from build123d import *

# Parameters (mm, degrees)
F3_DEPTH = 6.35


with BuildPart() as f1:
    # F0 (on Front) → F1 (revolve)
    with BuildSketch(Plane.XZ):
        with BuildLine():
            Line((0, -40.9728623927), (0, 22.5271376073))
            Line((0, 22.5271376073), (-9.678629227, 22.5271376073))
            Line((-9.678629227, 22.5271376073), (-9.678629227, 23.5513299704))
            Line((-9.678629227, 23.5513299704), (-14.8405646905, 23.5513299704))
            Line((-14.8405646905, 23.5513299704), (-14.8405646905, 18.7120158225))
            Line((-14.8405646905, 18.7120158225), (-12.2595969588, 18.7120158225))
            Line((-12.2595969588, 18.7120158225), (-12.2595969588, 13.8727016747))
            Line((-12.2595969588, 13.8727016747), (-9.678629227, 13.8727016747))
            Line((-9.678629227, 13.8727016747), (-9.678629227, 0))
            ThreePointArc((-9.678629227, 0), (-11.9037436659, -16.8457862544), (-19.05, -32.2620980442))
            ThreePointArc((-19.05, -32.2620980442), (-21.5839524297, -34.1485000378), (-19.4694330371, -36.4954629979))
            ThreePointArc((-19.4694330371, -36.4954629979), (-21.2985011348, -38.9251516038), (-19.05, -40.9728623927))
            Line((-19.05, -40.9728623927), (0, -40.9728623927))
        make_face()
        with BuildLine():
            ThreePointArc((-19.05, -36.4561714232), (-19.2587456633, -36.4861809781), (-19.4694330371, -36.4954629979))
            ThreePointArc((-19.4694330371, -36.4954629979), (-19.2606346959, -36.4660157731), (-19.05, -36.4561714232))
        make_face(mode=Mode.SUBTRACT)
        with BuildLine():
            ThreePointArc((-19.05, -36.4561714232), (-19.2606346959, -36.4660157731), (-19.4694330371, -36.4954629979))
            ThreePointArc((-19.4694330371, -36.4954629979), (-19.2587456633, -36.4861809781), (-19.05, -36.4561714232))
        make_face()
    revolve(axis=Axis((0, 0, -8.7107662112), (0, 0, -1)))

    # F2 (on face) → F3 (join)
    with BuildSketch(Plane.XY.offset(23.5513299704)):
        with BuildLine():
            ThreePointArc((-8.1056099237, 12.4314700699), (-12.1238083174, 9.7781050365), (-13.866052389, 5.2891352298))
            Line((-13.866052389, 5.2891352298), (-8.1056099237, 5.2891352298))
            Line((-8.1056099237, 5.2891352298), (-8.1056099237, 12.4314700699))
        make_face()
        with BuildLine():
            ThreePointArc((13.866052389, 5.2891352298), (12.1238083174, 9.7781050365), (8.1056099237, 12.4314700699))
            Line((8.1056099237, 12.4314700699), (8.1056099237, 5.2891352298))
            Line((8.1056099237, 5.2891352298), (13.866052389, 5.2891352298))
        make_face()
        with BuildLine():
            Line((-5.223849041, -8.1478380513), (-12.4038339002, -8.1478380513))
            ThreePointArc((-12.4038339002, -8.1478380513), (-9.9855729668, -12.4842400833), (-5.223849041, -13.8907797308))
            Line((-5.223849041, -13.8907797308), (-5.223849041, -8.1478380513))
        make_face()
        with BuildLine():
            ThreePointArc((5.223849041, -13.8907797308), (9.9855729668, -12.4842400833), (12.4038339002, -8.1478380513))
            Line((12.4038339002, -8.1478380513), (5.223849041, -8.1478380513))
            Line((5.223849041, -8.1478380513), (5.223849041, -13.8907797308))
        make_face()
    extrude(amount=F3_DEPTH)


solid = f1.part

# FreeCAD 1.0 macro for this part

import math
import FreeCAD as App
import Part
import Sketcher
from FreeCAD import Vector
Q = App.Units.Quantity

doc = App.newDocument("Part")
body = doc.addObject("PartDesign::Body", "Body")

# Sketch on XZ plane
sketch1 = body.newObject("Sketcher::SketchObject", "Sketch")
sketch1.AttachmentSupport = (doc.getObject("XZ_Plane"), [""])
sketch1.MapMode = "FlatFace"
sketch1.addGeometry(Part.ArcOfCircle(Part.Circle(Vector(-19.05, -38.714517, 0), Vector(0, 0, 1), 2.258345), math.radians(100.703451), math.radians(270)), False)
sketch1.addGeometry(Part.LineSegment(Vector(-19.05, -40.972862, 0), Vector(0, -40.972862, 0)), False)
sketch1.addGeometry(Part.LineSegment(Vector(0, -40.972862, 0), Vector(0, 22.527138, 0)), False)
sketch1.addGeometry(Part.LineSegment(Vector(0, 22.527138, 0), Vector(-9.678629, 22.527138, 0)), False)
sketch1.addGeometry(Part.LineSegment(Vector(-9.678629, 22.527138, 0), Vector(-9.678629, 23.55133, 0)), False)
sketch1.addGeometry(Part.LineSegment(Vector(-9.678629, 23.55133, 0), Vector(-14.840565, 23.55133, 0)), False)
sketch1.addGeometry(Part.LineSegment(Vector(-14.840565, 23.55133, 0), Vector(-14.840565, 18.712016, 0)), False)
sketch1.addGeometry(Part.LineSegment(Vector(-14.840565, 18.712016, 0), Vector(-12.259597, 18.712016, 0)), False)
sketch1.addGeometry(Part.LineSegment(Vector(-12.259597, 18.712016, 0), Vector(-12.259597, 13.872702, 0)), False)
sketch1.addGeometry(Part.LineSegment(Vector(-12.259597, 13.872702, 0), Vector(-9.678629, 13.872702, 0)), False)
sketch1.addGeometry(Part.LineSegment(Vector(-9.678629, 13.872702, 0), Vector(-9.678629, 0, 0)), False)
sketch1.addGeometry(Part.ArcOfCircle(Part.Circle(Vector(-66.010119, -1.129173, 0), Vector(0, 0, 1), 56.342806), math.radians(-33.542993), math.radians(1.148349)), False)
sketch1.addGeometry(Part.ArcOfCircle(Part.Circle(Vector(-19.458003, -34.359135, 0), Vector(0, 0, 1), 2.136359), math.radians(78.989994), math.radians(269.693445)), False)
sketch1.addConstraint(Sketcher.Constraint("Tangent", 0, 2, 1, 1))
sketch1.addConstraint(Sketcher.Constraint("Coincident", 1, 2, 2, 1))
sketch1.addConstraint(Sketcher.Constraint("Coincident", 2, 2, 3, 1))
sketch1.addConstraint(Sketcher.Constraint("Coincident", 3, 2, 4, 1))
sketch1.addConstraint(Sketcher.Constraint("Coincident", 4, 2, 5, 1))
sketch1.addConstraint(Sketcher.Constraint("Coincident", 5, 2, 6, 1))
sketch1.addConstraint(Sketcher.Constraint("Coincident", 6, 2, 7, 1))
sketch1.addConstraint(Sketcher.Constraint("Coincident", 7, 2, 8, 1))
sketch1.addConstraint(Sketcher.Constraint("Coincident", 8, 2, 9, 1))
sketch1.addConstraint(Sketcher.Constraint("Coincident", 9, 2, 10, 1))
sketch1.addConstraint(Sketcher.Constraint("Coincident", 10, 2, 11, 2))
sketch1.addConstraint(Sketcher.Constraint("Coincident", 11, 1, 12, 1))
sketch1.addConstraint(Sketcher.Constraint("Coincident", 12, 2, 0, 1))
sketch1.addConstraint(Sketcher.Constraint("Horizontal", 1))
sketch1.addConstraint(Sketcher.Constraint("Vertical", 2))
sketch1.addConstraint(Sketcher.Constraint("Horizontal", 3))
sketch1.addConstraint(Sketcher.Constraint("Vertical", 4))
sketch1.addConstraint(Sketcher.Constraint("Horizontal", 5))
sketch1.addConstraint(Sketcher.Constraint("Vertical", 6))
sketch1.addConstraint(Sketcher.Constraint("Horizontal", 7))
sketch1.addConstraint(Sketcher.Constraint("Vertical", 8))
sketch1.addConstraint(Sketcher.Constraint("Horizontal", 9))
sketch1.addConstraint(Sketcher.Constraint("Vertical", 10))
sketch1.addConstraint(Sketcher.Constraint("PointOnObject", 1, 2, -2))
sketch1.addConstraint(Sketcher.Constraint("PointOnObject", 10, 2, -1))
sketch1.addConstraint(Sketcher.Constraint("Vertical", 4, 2, 9, 2))
sketch1.addConstraint(Sketcher.Constraint("Vertical", 0, 2, 11, 1))
sketch1.addConstraint(Sketcher.Constraint("Equal", 7, 9))
sketch1.addConstraint(Sketcher.Constraint("Equal", 6, 8))
sketch1.addConstraint(Sketcher.Constraint("DistanceY", 2, 1, 2, 2, Q("2.5 in")))
sketch1.addConstraint(Sketcher.Constraint("DistanceX", 1, 1, 1, 2, Q("0.75 in")))
sketch1.addConstraint(Sketcher.Constraint("Radius", 12, 2.136359))
sketch1.addConstraint(Sketcher.Constraint("DistanceY", 10, 2, 10, 1, 13.872702))
sketch1.addConstraint(Sketcher.Constraint("Radius", 0, 2.258345))
sketch1.addConstraint(Sketcher.Constraint("Radius", 11, 56.342806))
sketch1.addConstraint(Sketcher.Constraint("DistanceX", 3, 2, 3, 1, 9.678629))
sketch1.addConstraint(Sketcher.Constraint("DistanceY", 11, 1, -1, 1, 32.262098))
sketch1.addConstraint(Sketcher.Constraint("DistanceY", 0, 2, 12, 2, 4.477399))
sketch1.addConstraint(Sketcher.Constraint("DistanceX", 5, 2, 5, 1, 5.161935))
sketch1.addConstraint(Sketcher.Constraint("DistanceY", 4, 1, 4, 2, 1.024192))
sketch1.addConstraint(Sketcher.Constraint("DistanceY", 6, 2, 6, 1, 4.839314))
revolution = body.newObject("PartDesign::Revolution", "Revolution")
revolution.Profile = sketch1
revolution.ReferenceAxis = (sketch1, ["V_Axis"])
revolution.Angle = 360

# Sketch on XY plane
sketch2 = body.newObject("Sketcher::SketchObject", "Sketch001")
sketch2.AttachmentSupport = (doc.getObject("XY_Plane"), [""])
sketch2.MapMode = "FlatFace"
sketch2.AttachmentOffset = App.Placement(Vector(0, 0, 23.55133), App.Rotation())
sketch2.addGeometry(Part.ArcOfCircle(Part.Circle(Vector(-5.951352, 4.79989, 0), Vector(0, 0, 1), 7.929807), math.radians(105.76342), math.radians(176.462775)), False)
sketch2.addGeometry(Part.LineSegment(Vector(-13.866052, 5.289135, 0), Vector(-8.10561, 5.289135, 0)), False)
sketch2.addGeometry(Part.LineSegment(Vector(-8.10561, 5.289135, 0), Vector(-8.10561, 12.43147, 0)), False)
sketch2.addGeometry(Part.ArcOfCircle(Part.Circle(Vector(5.951352, 4.79989, 0), Vector(0, 0, 1), 7.929807), math.radians(3.537225), math.radians(74.23658)), False)
sketch2.addGeometry(Part.LineSegment(Vector(8.10561, 12.43147, 0), Vector(8.10561, 5.289135, 0)), False)
sketch2.addGeometry(Part.LineSegment(Vector(8.10561, 5.289135, 0), Vector(13.866052, 5.289135, 0)), False)
sketch2.addGeometry(Part.LineSegment(Vector(-5.223849, -8.147838, 0), Vector(-12.403834, -8.147838, 0)), False)
sketch2.addGeometry(Part.ArcOfCircle(Part.Circle(Vector(-5.881263, -7.352917, 0), Vector(0, 0, 1), 6.570832), math.radians(-173.0515), math.radians(-84.257935)), False)
sketch2.addGeometry(Part.LineSegment(Vector(-5.223849, -13.89078, 0), Vector(-5.223849, -8.147838, 0)), False)
sketch2.addGeometry(Part.ArcOfCircle(Part.Circle(Vector(5.881263, -7.352917, 0), Vector(0, 0, 1), 6.570832), math.radians(-95.742065), math.radians(-6.9485)), False)
sketch2.addGeometry(Part.LineSegment(Vector(12.403834, -8.147838, 0), Vector(5.223849, -8.147838, 0)), False)
sketch2.addGeometry(Part.LineSegment(Vector(5.223849, -8.147838, 0), Vector(5.223849, -13.89078, 0)), False)
sketch2.addConstraint(Sketcher.Constraint("Coincident", 0, 2, 1, 1))
sketch2.addConstraint(Sketcher.Constraint("Coincident", 1, 2, 2, 1))
sketch2.addConstraint(Sketcher.Constraint("Coincident", 2, 2, 0, 1))
sketch2.addConstraint(Sketcher.Constraint("Coincident", 3, 2, 4, 1))
sketch2.addConstraint(Sketcher.Constraint("Coincident", 4, 2, 5, 1))
sketch2.addConstraint(Sketcher.Constraint("Coincident", 5, 2, 3, 1))
sketch2.addConstraint(Sketcher.Constraint("Coincident", 6, 2, 7, 1))
sketch2.addConstraint(Sketcher.Constraint("Coincident", 7, 2, 8, 1))
sketch2.addConstraint(Sketcher.Constraint("Coincident", 8, 2, 6, 1))
sketch2.addConstraint(Sketcher.Constraint("Coincident", 9, 2, 10, 1))
sketch2.addConstraint(Sketcher.Constraint("Coincident", 10, 2, 11, 1))
sketch2.addConstraint(Sketcher.Constraint("Coincident", 11, 2, 9, 1))
sketch2.addConstraint(Sketcher.Constraint("Horizontal", 1))
sketch2.addConstraint(Sketcher.Constraint("Vertical", 2))
sketch2.addConstraint(Sketcher.Constraint("Vertical", 4))
sketch2.addConstraint(Sketcher.Constraint("Horizontal", 5))
sketch2.addConstraint(Sketcher.Constraint("Horizontal", 6))
sketch2.addConstraint(Sketcher.Constraint("Vertical", 8))
sketch2.addConstraint(Sketcher.Constraint("Horizontal", 10))
sketch2.addConstraint(Sketcher.Constraint("Vertical", 11))
sketch2.addConstraint(Sketcher.Constraint("Equal", 0, 3))
sketch2.addConstraint(Sketcher.Constraint("Equal", 7, 9))
sketch2.addConstraint(Sketcher.Constraint("Symmetric", 0, 3, 3, 3, -2))
sketch2.addConstraint(Sketcher.Constraint("Symmetric", 7, 3, 9, 3, -2))
sketch2.addConstraint(Sketcher.Constraint("Symmetric", 1, 2, 4, 2, -2))
sketch2.addConstraint(Sketcher.Constraint("Symmetric", 8, 2, 10, 2, -2))
sketch2.addConstraint(Sketcher.Constraint("DistanceY", 8, 1, 8, 2, Q("0.2261001 in")))
sketch2.addConstraint(Sketcher.Constraint("Radius", 0, 7.929807))
sketch2.addConstraint(Sketcher.Constraint("Radius", 7, 6.570832))
sketch2.addConstraint(Sketcher.Constraint("DistanceX", 0, 2, 0, 3, 7.9147))
sketch2.addConstraint(Sketcher.Constraint("DistanceX", 8, 2, 10, 2, 10.447698))
sketch2.addConstraint(Sketcher.Constraint("DistanceX", 1, 1, 1, 2, 5.760442))
sketch2.addConstraint(Sketcher.Constraint("DistanceX", 6, 2, 6, 1, 7.179985))
sketch2.addConstraint(Sketcher.Constraint("DistanceX", 0, 3, -1, 1, 5.951352))
sketch2.addConstraint(Sketcher.Constraint("DistanceY", -1, 1, 0, 3, 4.79989))
sketch2.addConstraint(Sketcher.Constraint("DistanceY", 6, 2, -1, 1, 8.147838))
pad1 = body.newObject("PartDesign::Pad", "Pad")
pad1.Profile = sketch2
pad1.Length = Q("0.25 in")

doc.recompute()
